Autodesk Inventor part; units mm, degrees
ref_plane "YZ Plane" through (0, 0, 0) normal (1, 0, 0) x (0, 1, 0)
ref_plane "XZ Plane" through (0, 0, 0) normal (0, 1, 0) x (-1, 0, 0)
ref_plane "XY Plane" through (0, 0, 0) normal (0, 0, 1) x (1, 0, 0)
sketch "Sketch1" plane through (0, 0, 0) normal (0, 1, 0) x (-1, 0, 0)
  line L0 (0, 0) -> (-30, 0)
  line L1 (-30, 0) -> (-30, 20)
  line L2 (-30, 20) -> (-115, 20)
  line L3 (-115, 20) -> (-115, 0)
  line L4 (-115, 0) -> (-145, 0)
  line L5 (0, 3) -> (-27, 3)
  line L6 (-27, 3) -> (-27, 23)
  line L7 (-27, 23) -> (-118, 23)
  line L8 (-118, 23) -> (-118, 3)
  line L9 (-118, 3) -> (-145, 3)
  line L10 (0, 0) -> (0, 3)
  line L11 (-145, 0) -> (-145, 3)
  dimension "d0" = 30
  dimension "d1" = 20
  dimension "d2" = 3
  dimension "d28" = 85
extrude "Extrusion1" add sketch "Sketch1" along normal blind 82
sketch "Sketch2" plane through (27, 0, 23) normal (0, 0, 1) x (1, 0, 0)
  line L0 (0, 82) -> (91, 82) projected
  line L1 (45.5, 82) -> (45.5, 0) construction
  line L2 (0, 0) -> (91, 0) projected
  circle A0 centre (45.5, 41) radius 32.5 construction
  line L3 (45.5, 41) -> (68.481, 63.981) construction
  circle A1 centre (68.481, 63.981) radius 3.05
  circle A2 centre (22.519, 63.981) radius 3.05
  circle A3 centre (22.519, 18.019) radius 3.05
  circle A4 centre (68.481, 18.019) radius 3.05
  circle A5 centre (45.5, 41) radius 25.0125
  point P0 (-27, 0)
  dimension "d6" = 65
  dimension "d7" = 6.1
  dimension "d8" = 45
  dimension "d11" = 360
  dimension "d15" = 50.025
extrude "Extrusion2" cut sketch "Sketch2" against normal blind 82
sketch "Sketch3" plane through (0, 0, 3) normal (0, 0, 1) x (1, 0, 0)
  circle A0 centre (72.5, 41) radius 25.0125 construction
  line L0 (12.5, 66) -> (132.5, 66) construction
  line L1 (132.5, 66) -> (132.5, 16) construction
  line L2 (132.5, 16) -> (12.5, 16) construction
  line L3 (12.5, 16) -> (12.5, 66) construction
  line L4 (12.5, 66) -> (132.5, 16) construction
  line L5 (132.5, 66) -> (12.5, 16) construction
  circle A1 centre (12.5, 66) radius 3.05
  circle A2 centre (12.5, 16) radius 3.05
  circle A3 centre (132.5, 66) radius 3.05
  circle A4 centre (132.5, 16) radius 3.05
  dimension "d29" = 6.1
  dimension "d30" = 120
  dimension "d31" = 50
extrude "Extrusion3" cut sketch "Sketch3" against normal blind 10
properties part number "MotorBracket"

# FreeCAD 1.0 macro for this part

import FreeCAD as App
import Part
import Sketcher
Q = App.Units.Quantity


def add_polygon(sketch, points):
    """Adds a closed chain of lines whose ends are joined by coincident constraints."""
    first, n = sketch.GeometryCount, len(points)
    for a, b in zip(points, points[1:] + points[:1]):
        sketch.addGeometry(Part.LineSegment(App.Vector(*a, 0), App.Vector(*b, 0)), False)
    for i in range(n):
        sketch.addConstraint(Sketcher.Constraint("Coincident", first + i, 2, first + (i + 1) % n, 1))

doc = App.newDocument("Part")
body = doc.addObject("PartDesign::Body", "Body")

sketch1 = body.newObject("Sketcher::SketchObject", "Sketch")
sketch1.AttachmentSupport = (doc.getObject("XZ_Plane"), [""])
sketch1.MapMode = "FlatFace"
add_polygon(sketch1, [(30, 0), (0, 0), (0, 3), (27, 3), (27, 23), (118, 23), (118, 3), (145, 3), (145, 0), (115, 0), (115, 20), (30, 20)])
sketch1.addConstraint([
    Sketcher.Constraint("Horizontal", 0),
    Sketcher.Constraint("Vertical", 1),
    Sketcher.Constraint("Horizontal", 2),
    Sketcher.Constraint("Vertical", 3),
    Sketcher.Constraint("Horizontal", 4),
    Sketcher.Constraint("Vertical", 5),
    Sketcher.Constraint("Horizontal", 6),
    Sketcher.Constraint("Vertical", 7),
    Sketcher.Constraint("Horizontal", 8),
    Sketcher.Constraint("Vertical", 9),
    Sketcher.Constraint("Horizontal", 10),
    Sketcher.Constraint("Vertical", 11),
    Sketcher.Constraint("Coincident", 0, 2, -1, 1),
    Sketcher.Constraint("PointOnObject", 7, 2, -1),
    Sketcher.Constraint("Horizontal", 2, 2, 5, 2),
    Sketcher.Constraint("Equal", 2, 6),
    Sketcher.Constraint("Equal", 0, 8),
    Sketcher.Constraint("Equal", 5, 9),
    Sketcher.Constraint("DistanceX", 0, 2, 0, 1, Q("30 mm")),
    Sketcher.Constraint("DistanceX", 10, 2, 10, 1, Q("85 mm")),
    Sketcher.Constraint("DistanceY", 1, 1, 1, 2, Q("3 mm")),
    Sketcher.Constraint("DistanceY", 3, 1, 3, 2, Q("20 mm")),
    Sketcher.Constraint("DistanceX", 8, 2, 5, 2, Q("3 mm")),
])
pad1 = body.newObject("PartDesign::Pad", "Pad")
pad1.Profile = sketch1
pad1.Length = 82
pad1.Reversed = True

sketch2 = body.newObject("Sketcher::SketchObject", "Sketch001")
sketch2.AttachmentSupport = (doc.getObject("XY_Plane"), [""])
sketch2.MapMode = "FlatFace"
sketch2.AttachmentOffset = App.Placement(App.Vector(0, 0, 23), App.Rotation())
sketch2.addGeometry([
    Part.Circle(App.Vector(95.5, 64, 0), App.Vector(0, 0, 1), 3),
    Part.Circle(App.Vector(49.5, 64, 0), App.Vector(0, 0, 1), 3),
    Part.Circle(App.Vector(49.5, 18, 0), App.Vector(0, 0, 1), 3),
    Part.Circle(App.Vector(95.5, 18, 0), App.Vector(0, 0, 1), 3),
    Part.Circle(App.Vector(72.5, 41, 0), App.Vector(0, 0, 1), 25),
], False)
sketch2.addConstraint([
    Sketcher.Constraint("Equal", 0, 1),
    Sketcher.Constraint("Equal", 1, 2),
    Sketcher.Constraint("Equal", 2, 3),
    Sketcher.Constraint("Horizontal", 0, 3, 1, 3),
    Sketcher.Constraint("Horizontal", 2, 3, 3, 3),
    Sketcher.Constraint("Vertical", 1, 3, 2, 3),
    Sketcher.Constraint("Vertical", 0, 3, 3, 3),
    Sketcher.Constraint("Diameter", 0, Q("6.1 mm")),
    Sketcher.Constraint("Diameter", 4, Q("50.025 mm")),
    Sketcher.Constraint("DistanceY", -1, 1, 4, 3, Q("41 mm")),
    Sketcher.Constraint("DistanceX", -1, 1, 4, 3, Q("72.5 mm")),
    Sketcher.Constraint("DistanceX", -1, 1, 0, 3, Q("95.481 mm")),
    Sketcher.Constraint("DistanceY", -1, 1, 0, 3, Q("63.981 mm")),
    Sketcher.Constraint("DistanceX", -1, 1, 1, 3, Q("49.519 mm")),
    Sketcher.Constraint("DistanceY", -1, 1, 2, 3, Q("18.019 mm")),
])
pocket1 = body.newObject("PartDesign::Pocket", "Pocket")
pocket1.Profile = sketch2
pocket1.Length = 82

sketch3 = body.newObject("Sketcher::SketchObject", "Sketch002")
sketch3.AttachmentSupport = (doc.getObject("XY_Plane"), [""])
sketch3.MapMode = "FlatFace"
sketch3.AttachmentOffset = App.Placement(App.Vector(0, 0, 3), App.Rotation())
sketch3.addGeometry([
    Part.Circle(App.Vector(12.5, 66, 0), App.Vector(0, 0, 1), 3),
    Part.Circle(App.Vector(12.5, 16, 0), App.Vector(0, 0, 1), 3),
    Part.Circle(App.Vector(132.5, 66, 0), App.Vector(0, 0, 1), 3),
    Part.Circle(App.Vector(132.5, 16, 0), App.Vector(0, 0, 1), 3),
], False)
sketch3.addConstraint([
    Sketcher.Constraint("Equal", 0, 1),
    Sketcher.Constraint("Equal", 1, 2),
    Sketcher.Constraint("Equal", 2, 3),
    Sketcher.Constraint("Horizontal", 0, 3, 2, 3),
    Sketcher.Constraint("Horizontal", 1, 3, 3, 3),
    Sketcher.Constraint("Vertical", 0, 3, 1, 3),
    Sketcher.Constraint("Vertical", 2, 3, 3, 3),
    Sketcher.Constraint("Diameter", 0, Q("6.1 mm")),
    Sketcher.Constraint("DistanceY", 1, 3, 0, 3, Q("50 mm")),
    Sketcher.Constraint("DistanceX", 0, 3, 2, 3, Q("120 mm")),
    Sketcher.Constraint("DistanceY", -1, 1, 0, 3, Q("66 mm")),
    Sketcher.Constraint("DistanceX", -1, 1, 0, 3, Q("12.5 mm")),
])
pocket2 = body.newObject("PartDesign::Pocket", "Pocket001")
pocket2.Profile = sketch3
pocket2.Length = 10

doc.recompute()
